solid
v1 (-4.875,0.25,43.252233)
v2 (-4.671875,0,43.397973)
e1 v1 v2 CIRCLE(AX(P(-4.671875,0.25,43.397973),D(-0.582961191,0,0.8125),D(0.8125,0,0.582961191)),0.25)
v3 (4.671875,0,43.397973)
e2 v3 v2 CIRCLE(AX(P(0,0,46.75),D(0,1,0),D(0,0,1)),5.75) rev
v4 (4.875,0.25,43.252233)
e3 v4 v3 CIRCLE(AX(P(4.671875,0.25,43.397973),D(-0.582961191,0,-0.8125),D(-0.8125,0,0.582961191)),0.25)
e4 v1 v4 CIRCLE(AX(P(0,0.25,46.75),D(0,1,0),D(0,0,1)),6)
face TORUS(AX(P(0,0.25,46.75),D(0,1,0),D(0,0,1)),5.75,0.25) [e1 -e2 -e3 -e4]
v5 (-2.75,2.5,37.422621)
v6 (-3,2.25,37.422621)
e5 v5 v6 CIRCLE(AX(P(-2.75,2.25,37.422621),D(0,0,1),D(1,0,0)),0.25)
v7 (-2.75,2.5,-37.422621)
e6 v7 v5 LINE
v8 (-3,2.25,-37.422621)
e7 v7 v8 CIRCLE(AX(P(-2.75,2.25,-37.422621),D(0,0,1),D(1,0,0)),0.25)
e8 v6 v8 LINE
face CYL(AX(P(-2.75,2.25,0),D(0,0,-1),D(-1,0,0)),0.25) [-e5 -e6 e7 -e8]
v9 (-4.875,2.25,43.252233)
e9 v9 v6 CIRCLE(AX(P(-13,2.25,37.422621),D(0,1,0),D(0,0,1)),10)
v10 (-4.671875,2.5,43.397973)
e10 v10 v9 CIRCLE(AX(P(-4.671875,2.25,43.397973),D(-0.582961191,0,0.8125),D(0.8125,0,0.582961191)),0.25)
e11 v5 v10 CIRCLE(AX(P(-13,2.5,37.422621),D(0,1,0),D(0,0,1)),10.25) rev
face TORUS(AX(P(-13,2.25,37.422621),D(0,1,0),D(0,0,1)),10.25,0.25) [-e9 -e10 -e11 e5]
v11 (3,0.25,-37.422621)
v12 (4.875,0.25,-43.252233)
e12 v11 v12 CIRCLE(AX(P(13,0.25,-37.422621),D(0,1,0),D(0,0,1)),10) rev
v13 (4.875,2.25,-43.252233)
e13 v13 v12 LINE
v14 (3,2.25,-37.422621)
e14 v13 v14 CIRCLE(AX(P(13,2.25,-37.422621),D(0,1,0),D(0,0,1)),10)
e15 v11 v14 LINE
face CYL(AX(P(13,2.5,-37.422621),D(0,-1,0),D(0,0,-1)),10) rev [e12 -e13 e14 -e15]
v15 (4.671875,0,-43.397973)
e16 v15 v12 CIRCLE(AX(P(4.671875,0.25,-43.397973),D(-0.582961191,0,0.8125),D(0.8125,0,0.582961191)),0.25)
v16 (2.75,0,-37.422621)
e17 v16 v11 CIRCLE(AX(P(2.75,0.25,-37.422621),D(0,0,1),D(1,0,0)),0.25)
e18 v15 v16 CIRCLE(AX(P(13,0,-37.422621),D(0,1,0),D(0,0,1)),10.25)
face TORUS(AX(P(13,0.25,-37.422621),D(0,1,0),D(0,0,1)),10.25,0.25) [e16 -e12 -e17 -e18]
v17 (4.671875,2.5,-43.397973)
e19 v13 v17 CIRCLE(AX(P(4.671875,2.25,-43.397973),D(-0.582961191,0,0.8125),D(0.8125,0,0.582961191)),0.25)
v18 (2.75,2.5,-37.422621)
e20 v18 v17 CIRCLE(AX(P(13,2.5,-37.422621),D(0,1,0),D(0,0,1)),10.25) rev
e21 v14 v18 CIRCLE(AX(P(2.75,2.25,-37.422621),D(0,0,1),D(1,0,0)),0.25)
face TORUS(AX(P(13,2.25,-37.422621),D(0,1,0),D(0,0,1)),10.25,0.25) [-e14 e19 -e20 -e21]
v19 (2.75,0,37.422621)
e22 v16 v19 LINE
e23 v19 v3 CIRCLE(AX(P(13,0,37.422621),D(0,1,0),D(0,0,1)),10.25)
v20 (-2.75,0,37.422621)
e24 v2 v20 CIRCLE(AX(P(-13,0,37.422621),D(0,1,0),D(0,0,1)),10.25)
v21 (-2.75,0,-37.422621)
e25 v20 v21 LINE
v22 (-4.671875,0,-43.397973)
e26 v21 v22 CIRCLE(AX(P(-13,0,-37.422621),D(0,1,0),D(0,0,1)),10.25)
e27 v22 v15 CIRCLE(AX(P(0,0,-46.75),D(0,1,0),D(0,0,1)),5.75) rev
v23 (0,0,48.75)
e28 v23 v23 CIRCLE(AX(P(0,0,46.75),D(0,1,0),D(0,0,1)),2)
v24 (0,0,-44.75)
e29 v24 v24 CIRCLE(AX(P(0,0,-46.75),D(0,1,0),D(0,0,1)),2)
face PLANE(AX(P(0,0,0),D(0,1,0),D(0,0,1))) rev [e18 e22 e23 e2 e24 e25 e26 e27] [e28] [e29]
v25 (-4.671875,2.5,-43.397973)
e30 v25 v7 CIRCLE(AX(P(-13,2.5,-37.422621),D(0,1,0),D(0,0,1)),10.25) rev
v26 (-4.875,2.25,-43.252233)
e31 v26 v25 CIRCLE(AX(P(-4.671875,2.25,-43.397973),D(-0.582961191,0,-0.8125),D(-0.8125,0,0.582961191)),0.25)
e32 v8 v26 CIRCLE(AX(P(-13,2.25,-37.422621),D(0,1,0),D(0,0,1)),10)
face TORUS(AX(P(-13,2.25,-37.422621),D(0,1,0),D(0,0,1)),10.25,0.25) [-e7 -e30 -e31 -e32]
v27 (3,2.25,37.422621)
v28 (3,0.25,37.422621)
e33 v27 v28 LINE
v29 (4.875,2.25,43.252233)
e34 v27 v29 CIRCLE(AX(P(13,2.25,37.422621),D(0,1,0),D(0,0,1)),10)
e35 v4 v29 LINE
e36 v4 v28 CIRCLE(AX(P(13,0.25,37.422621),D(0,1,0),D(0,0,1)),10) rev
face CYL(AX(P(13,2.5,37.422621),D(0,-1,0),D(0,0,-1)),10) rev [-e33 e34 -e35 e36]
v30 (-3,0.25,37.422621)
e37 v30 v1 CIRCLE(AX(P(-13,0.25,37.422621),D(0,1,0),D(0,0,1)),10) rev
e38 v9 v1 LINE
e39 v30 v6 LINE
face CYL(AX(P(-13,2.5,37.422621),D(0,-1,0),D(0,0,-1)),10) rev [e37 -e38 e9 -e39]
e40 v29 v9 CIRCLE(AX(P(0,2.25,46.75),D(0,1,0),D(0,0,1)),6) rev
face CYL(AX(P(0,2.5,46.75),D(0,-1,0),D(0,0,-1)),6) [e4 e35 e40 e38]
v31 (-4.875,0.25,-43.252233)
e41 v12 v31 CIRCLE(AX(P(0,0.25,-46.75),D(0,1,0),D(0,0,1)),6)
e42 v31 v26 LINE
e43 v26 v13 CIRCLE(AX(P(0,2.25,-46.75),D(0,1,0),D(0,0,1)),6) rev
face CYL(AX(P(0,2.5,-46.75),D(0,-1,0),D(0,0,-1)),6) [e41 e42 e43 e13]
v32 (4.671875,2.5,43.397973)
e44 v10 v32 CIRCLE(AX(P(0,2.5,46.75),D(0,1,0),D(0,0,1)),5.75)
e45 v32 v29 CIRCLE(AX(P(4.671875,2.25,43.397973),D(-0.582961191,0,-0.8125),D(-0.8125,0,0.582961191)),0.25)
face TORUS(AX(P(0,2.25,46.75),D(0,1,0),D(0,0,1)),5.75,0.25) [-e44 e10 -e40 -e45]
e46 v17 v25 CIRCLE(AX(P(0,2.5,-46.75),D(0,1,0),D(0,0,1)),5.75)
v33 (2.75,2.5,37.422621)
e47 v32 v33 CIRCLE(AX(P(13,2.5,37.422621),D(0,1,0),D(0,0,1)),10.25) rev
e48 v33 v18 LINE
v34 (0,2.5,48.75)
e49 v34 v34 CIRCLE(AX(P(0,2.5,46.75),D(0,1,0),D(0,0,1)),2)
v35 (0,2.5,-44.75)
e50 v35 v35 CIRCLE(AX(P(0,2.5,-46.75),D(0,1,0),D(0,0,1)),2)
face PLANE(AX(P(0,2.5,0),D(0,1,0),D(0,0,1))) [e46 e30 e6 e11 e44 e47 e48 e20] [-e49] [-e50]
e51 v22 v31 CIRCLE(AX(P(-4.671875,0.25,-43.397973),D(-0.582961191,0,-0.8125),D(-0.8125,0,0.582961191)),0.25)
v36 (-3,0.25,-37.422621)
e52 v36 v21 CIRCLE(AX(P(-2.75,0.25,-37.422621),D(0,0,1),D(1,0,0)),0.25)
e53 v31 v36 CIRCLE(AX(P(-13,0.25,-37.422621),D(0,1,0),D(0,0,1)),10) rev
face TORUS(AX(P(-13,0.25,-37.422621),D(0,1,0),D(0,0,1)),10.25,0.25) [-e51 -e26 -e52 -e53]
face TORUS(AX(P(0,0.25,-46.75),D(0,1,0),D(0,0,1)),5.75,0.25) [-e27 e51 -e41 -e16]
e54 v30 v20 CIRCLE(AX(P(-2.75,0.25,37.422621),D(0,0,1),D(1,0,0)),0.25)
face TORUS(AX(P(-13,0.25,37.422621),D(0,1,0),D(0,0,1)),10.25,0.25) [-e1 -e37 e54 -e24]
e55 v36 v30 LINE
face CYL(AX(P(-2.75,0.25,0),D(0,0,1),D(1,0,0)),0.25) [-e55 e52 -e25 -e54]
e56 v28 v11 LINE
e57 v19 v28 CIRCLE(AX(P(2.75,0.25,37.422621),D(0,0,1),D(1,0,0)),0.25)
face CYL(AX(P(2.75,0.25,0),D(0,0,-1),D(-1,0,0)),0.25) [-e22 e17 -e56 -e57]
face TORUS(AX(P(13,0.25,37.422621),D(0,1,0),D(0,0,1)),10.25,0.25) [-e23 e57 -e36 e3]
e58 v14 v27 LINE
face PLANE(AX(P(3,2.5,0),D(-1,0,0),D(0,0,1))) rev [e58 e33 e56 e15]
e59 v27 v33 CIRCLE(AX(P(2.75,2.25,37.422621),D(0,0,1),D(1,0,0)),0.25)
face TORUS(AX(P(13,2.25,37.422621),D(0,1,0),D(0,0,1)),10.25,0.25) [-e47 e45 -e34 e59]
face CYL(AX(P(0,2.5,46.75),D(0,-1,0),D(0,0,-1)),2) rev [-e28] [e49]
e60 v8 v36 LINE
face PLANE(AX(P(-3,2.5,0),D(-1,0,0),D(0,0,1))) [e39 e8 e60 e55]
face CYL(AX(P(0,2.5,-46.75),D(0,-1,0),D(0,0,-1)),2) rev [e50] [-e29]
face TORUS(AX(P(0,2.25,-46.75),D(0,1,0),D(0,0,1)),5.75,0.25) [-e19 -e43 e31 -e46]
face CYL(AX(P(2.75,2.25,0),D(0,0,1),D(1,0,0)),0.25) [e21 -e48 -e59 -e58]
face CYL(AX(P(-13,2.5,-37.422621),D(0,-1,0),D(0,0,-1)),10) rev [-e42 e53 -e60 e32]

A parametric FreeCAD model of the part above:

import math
import FreeCAD as App
import Part
import Sketcher

V = App.Vector
Q = App.Units.Quantity


def edges_at(feature, points):
    """Names of the edges that pass closest to the given points."""
    edges = feature.Shape.Edges
    near = lambda p: min(range(len(edges)), key=lambda i: edges[i].distToShape(Part.Vertex(*p))[0])
    return sorted({f"Edge{near(p) + 1}" for p in points})

doc = App.newDocument("Part")
body = doc.addObject("PartDesign::Body", "Body")

# Sketch on XZ plane
sketch1 = body.newObject("Sketcher::SketchObject", "Sketch")
sketch1.AttachmentSupport = (doc.getObject("XZ_Plane"), [""])
sketch1.MapMode = "FlatFace"
sketch1.addGeometry([
    Part.ArcOfCircle(Part.Circle(V(0, 46.8, 0), V(0, 0, 1), 6), math.radians(-60), math.radians(240)),  # 0
    Part.LineSegment(V(3, 41.6, 0), V(3, -41.6, 0)),  # 1
    Part.ArcOfCircle(Part.Circle(V(0, -46.8, 0), V(0, 0, 1), 6), math.radians(120), math.radians(420)),  # 2
    Part.LineSegment(V(-3, -41.6, 0), V(-3, 41.6, 0)),  # 3
    Part.Circle(V(0, 46.8, 0), V(0, 0, 1), 2),  # 4
    Part.Circle(V(0, -46.8, 0), V(0, 0, 1), 2),  # 5
], False)
sketch1.addConstraint([
    Sketcher.Constraint("Coincident", 0, 1, 1, 1),
    Sketcher.Constraint("Coincident", 1, 2, 2, 2),
    Sketcher.Constraint("Coincident", 2, 1, 3, 1),
    Sketcher.Constraint("Coincident", 3, 2, 0, 2),
    Sketcher.Constraint("Vertical", 1),
    Sketcher.Constraint("Vertical", 3),
    Sketcher.Constraint("Coincident", 4, 3, 0, 3),
    Sketcher.Constraint("Coincident", 5, 3, 2, 3),
    Sketcher.Constraint("Equal", 0, 2),
    Sketcher.Constraint("Equal", 4, 5),
    Sketcher.Constraint("Symmetric", 0, 3, 2, 3, -1, 1),
    Sketcher.Constraint("Symmetric", 1, 2, 2, 1, -2),
    Sketcher.Constraint("Diameter", 4, Q("4 mm")),
    Sketcher.Constraint("Radius", 0, Q("6 mm")),
    Sketcher.Constraint("DistanceX", -1, 1, 0, 1, Q("3 mm")),
    Sketcher.Constraint("DistanceY", 2, 3, 0, 3, Q("93.5 mm")),
])
pad1 = body.newObject("PartDesign::Pad", "Pad")
pad1.Profile = sketch1
pad1.Length = 2.5
pad1.Reversed = True
doc.recompute()

fillet = body.newObject("PartDesign::Fillet", "Fillet")
fillet.Base = (pad1, edges_at(pad1, [
    (-3, 1.25, 41.554),
    (-3, 1.25, -41.554),
    (3, 1.25, -41.554),
    (3, 1.25, 41.554),
]))
fillet.Radius = 10
doc.recompute()

fillet2 = body.newObject("PartDesign::Fillet", "Fillet001")
fillet2.Base = (fillet, edges_at(fillet, [
    (0, 0, 52.75),
    (0, 2.5, 52.75),
    (-3, 0, 0),
    (-3, 2.5, 0),
    (0, 0, -52.75),
    (0, 2.5, -52.75),
    (3, 0, 0),
    (3, 2.5, 0),
    (-3.48, 0, 40.484),
    (-3.48, 2.5, 40.484),
    (-3.48, 0, -40.484),
    (-3.48, 2.5, -40.484),
    (3.48, 0, -40.484),
    (3.48, 2.5, -40.484),
    (3.48, 0, 40.484),
    (3.48, 2.5, 40.484),
]))
fillet2.Radius = 0.25

doc.recompute()
